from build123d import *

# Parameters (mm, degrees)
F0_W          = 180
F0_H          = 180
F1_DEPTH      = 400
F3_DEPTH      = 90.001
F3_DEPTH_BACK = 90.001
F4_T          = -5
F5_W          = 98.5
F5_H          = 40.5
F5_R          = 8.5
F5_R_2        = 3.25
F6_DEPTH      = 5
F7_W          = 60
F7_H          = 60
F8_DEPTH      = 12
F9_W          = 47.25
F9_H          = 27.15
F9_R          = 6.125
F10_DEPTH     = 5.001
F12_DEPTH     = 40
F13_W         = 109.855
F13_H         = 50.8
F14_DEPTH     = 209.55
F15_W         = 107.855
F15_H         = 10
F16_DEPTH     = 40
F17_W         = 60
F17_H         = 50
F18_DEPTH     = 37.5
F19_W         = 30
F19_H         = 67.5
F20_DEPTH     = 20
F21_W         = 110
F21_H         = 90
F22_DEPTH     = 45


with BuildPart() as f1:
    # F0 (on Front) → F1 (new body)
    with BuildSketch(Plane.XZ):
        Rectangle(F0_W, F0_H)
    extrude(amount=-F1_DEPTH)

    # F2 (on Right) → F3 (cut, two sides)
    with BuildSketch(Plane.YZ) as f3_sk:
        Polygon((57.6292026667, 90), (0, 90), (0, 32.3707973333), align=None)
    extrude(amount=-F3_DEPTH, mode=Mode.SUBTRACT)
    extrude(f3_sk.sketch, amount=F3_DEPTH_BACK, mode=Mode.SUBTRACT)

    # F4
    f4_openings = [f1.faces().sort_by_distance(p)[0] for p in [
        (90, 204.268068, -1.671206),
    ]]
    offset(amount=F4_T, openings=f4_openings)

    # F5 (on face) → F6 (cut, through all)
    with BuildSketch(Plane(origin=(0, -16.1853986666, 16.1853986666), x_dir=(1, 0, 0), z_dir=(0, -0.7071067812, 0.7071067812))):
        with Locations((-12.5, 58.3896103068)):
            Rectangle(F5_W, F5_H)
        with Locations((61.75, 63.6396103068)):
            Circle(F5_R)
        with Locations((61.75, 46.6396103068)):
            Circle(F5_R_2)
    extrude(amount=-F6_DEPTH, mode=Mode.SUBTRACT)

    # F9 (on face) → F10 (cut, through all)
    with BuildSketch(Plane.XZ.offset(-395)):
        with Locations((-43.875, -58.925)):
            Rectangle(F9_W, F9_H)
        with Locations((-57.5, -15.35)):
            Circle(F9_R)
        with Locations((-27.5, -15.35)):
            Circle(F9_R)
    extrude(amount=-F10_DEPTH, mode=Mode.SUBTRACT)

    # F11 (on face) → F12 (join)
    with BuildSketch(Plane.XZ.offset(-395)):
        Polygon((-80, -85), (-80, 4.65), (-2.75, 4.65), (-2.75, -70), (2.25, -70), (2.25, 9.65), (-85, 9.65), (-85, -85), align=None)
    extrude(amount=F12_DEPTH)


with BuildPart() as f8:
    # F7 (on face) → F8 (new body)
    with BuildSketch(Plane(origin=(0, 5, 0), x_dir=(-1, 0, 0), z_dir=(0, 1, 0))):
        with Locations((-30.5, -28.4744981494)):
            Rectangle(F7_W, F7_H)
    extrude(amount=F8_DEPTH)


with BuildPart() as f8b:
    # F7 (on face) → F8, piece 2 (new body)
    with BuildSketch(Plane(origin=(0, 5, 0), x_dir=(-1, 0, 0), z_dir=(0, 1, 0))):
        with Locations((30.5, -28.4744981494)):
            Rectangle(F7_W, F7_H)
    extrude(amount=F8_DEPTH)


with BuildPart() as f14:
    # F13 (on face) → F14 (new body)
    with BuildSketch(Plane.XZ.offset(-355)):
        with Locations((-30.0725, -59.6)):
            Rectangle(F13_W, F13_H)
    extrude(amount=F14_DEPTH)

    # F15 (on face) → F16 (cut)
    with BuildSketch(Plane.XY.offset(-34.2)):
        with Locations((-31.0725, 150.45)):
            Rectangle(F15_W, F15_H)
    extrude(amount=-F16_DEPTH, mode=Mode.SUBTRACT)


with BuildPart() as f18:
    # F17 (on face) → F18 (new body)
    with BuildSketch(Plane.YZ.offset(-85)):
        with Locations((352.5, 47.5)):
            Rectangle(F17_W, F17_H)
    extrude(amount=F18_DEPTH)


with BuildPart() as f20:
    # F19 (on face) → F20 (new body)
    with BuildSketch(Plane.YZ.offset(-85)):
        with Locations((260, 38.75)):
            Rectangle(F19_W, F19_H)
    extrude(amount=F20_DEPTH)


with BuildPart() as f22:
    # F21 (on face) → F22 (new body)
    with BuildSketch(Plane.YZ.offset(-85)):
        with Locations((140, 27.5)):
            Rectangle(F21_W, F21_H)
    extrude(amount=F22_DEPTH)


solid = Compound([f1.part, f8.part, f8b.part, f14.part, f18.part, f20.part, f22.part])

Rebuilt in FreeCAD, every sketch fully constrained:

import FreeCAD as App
import Part
import Sketcher
Q = App.Units.Quantity


def faces_at(feature, points):
    """Names of the faces that lie closest to the given points."""
    faces = feature.Shape.Faces
    near = lambda p: min(range(len(faces)), key=lambda i: faces[i].distToShape(Part.Vertex(*p))[0])
    return sorted({f"Face{near(p) + 1}" for p in points})


def add_polygon(sketch, points):
    """Adds a closed chain of lines whose ends are joined by coincident constraints."""
    first, n = sketch.GeometryCount, len(points)
    for a, b in zip(points, points[1:] + points[:1]):
        sketch.addGeometry(Part.LineSegment(App.Vector(*a, 0), App.Vector(*b, 0)), False)
    for i in range(n):
        sketch.addConstraint(Sketcher.Constraint("Coincident", first + i, 2, first + (i + 1) % n, 1))

doc = App.newDocument("Part")
body = doc.addObject("PartDesign::Body", "Body")

# Sketch on XZ plane
sketch1 = body.newObject("Sketcher::SketchObject", "Sketch")
sketch1.AttachmentSupport = (doc.getObject("XZ_Plane"), [""])
sketch1.MapMode = "FlatFace"
add_polygon(sketch1, [(-90, 90), (-90, -90), (90, -90), (90, 90)])  # lines 0-3
sketch1.addConstraint([
    Sketcher.Constraint("Vertical", 0),
    Sketcher.Constraint("Horizontal", 1),
    Sketcher.Constraint("Vertical", 2),
    Sketcher.Constraint("Horizontal", 3),
    Sketcher.Constraint("Symmetric", 0, 2, 2, 2, -1, 1),
    Sketcher.Constraint("Equal", 3, 0),
    Sketcher.Constraint("DistanceX", 1, 1, 1, 2, Q("180 mm")),
])
pad1 = body.newObject("PartDesign::Pad", "Pad")
pad1.Profile = sketch1
pad1.Length = 400
pad1.Reversed = True

# Sketch on YZ plane
sketch2 = body.newObject("Sketcher::SketchObject", "Sketch001")
sketch2.AttachmentSupport = (doc.getObject("YZ_Plane"), [""])
sketch2.MapMode = "FlatFace"
add_polygon(sketch2, [(58, 90), (0, 90), (0, 32)])  # lines 0-2
sketch2.addConstraint([
    Sketcher.Constraint("Horizontal", 0),
    Sketcher.Constraint("Vertical", 1),
    Sketcher.Constraint("PointOnObject", 0, 2, -2),
    Sketcher.Constraint("Equal", 0, 1),
    Sketcher.Constraint("DistanceY", -1, 1, 0, 2, Q("90 mm")),
    Sketcher.Constraint("Distance", 2, Q("81.5 mm")),
])
pocket1 = body.newObject("PartDesign::Pocket", "Pocket")
pocket1.Profile = sketch2
pocket1.Type = "ThroughAll"
pocket1.Midplane = True
doc.recompute()

thickness = body.newObject("PartDesign::Thickness", "Thickness")
thickness.Base = (pocket1, faces_at(pocket1, [(90, 200, 0)]))
thickness.Value = 5
thickness.Reversed = True
thickness.Join = "Arc"

# Sketch on an angled plane
sketch3 = body.newObject("Sketcher::SketchObject", "Sketch002")
sketch3.Placement = App.Placement(App.Vector(0, -16.185399, 16.185399), App.Rotation(App.Vector(1, 0, 0), App.Vector(0, 0.707106781, 0.707106781), App.Vector(0, -0.707106781, 0.707106781), "ZXY"))
add_polygon(sketch3, [(-61.8, 78.6), (-61.8, 38.1), (36.8, 38.1), (36.8, 78.6)])  # lines 0-3
sketch3.addGeometry(Part.Circle(App.Vector(61.8, 63.6, 0), App.Vector(0, 0, 1), 8.5), False)  # 4
sketch3.addGeometry(Part.Circle(App.Vector(61.8, 46.6, 0), App.Vector(0, 0, 1), 3.2), False)  # 5
sketch3.addConstraint([
    Sketcher.Constraint("Vertical", 0),
    Sketcher.Constraint("Horizontal", 1),
    Sketcher.Constraint("Vertical", 2),
    Sketcher.Constraint("Horizontal", 3),
    Sketcher.Constraint("Vertical", 4, 3, 5, 3),
    Sketcher.Constraint("Diameter", 4, Q("17 mm")),
    Sketcher.Constraint("Diameter", 5, Q("6.5 mm")),
    Sketcher.Constraint("DistanceX", 1, 1, 1, 2, Q("98.5 mm")),
    Sketcher.Constraint("DistanceY", 0, 2, 0, 1, Q("40.5 mm")),
    Sketcher.Constraint("DistanceY", 5, 3, 4, 3, Q("17 mm")),
    Sketcher.Constraint("DistanceX", 1, 2, 5, 3, Q("25 mm")),
    Sketcher.Constraint("DistanceY", 4, 3, 2, 2, Q("15 mm")),
    Sketcher.Constraint("DistanceX", -1, 1, 4, 3, Q("61.75 mm")),
    Sketcher.Constraint("DistanceY", -1, 1, 4, 3, Q("63.63961 mm")),
])
pocket2 = body.newObject("PartDesign::Pocket", "Pocket001")
pocket2.Profile = sketch3
pocket2.Length = 5

# Sketch on XZ plane
sketch4 = body.newObject("Sketcher::SketchObject", "Sketch003")
sketch4.AttachmentSupport = (doc.getObject("XZ_Plane"), [""])
sketch4.MapMode = "FlatFace"
sketch4.AttachmentOffset = App.Placement(App.Vector(0, 0, -395), App.Rotation())
add_polygon(sketch4, [(-68, -45), (-68, -72), (-20, -72), (-20, -45)])  # lines 0-3
sketch4.addGeometry(Part.Circle(App.Vector(-58, -15, 0), App.Vector(0, 0, 1), 6), False)  # 4
sketch4.addGeometry(Part.Circle(App.Vector(-28, -15, 0), App.Vector(0, 0, 1), 6), False)  # 5
sketch4.addConstraint([
    Sketcher.Constraint("Vertical", 0),
    Sketcher.Constraint("Horizontal", 1),
    Sketcher.Constraint("Vertical", 2),
    Sketcher.Constraint("Horizontal", 3),
    Sketcher.Constraint("Equal", 4, 5),
    Sketcher.Constraint("Horizontal", 4, 3, 5, 3),
    Sketcher.Constraint("Diameter", 4, Q("12.25 mm")),
    Sketcher.Constraint("DistanceX", 4, 3, 5, 3, Q("30 mm")),
    Sketcher.Constraint("DistanceX", 0, 2, 4, 3, Q("10 mm")),
    Sketcher.Constraint("DistanceY", 2, 2, 5, 3, Q("30 mm")),
    Sketcher.Constraint("DistanceX", 1, 1, 1, 2, Q("47.25 mm")),
    Sketcher.Constraint("DistanceY", 0, 2, 0, 1, Q("27.15 mm")),
    Sketcher.Constraint("DistanceX", 4, 3, -1, 1, Q("57.5 mm")),
    Sketcher.Constraint("DistanceY", 0, 2, -1, 1, Q("72.5 mm")),
])
pocket3 = body.newObject("PartDesign::Pocket", "Pocket002")
pocket3.Profile = sketch4
pocket3.Type = "ThroughAll"

# Sketch on XZ plane
sketch5 = body.newObject("Sketcher::SketchObject", "Sketch004")
sketch5.AttachmentSupport = (doc.getObject("XZ_Plane"), [""])
sketch5.MapMode = "FlatFace"
sketch5.AttachmentOffset = App.Placement(App.Vector(0, 0, -395), App.Rotation())
add_polygon(sketch5, [(-80, -85), (-80, 5), (-3, 5), (-3, -70), (2, -70), (2, 10), (-85, 10), (-85, -85)])  # lines 0-7
sketch5.addConstraint([
    Sketcher.Constraint("Vertical", 0),
    Sketcher.Constraint("Horizontal", 1),
    Sketcher.Constraint("Vertical", 2),
    Sketcher.Constraint("Horizontal", 3),
    Sketcher.Constraint("Vertical", 4),
    Sketcher.Constraint("Horizontal", 5),
    Sketcher.Constraint("Vertical", 6),
    Sketcher.Constraint("Horizontal", 7),
    Sketcher.Constraint("Equal", 3, 7),
    Sketcher.Constraint("DistanceX", 3, 1, 3, 2, Q("5 mm")),
    Sketcher.Constraint("DistanceX", 0, 2, -1, 1, Q("80 mm")),
    Sketcher.Constraint("DistanceY", 2, 2, -1, 1, Q("70 mm")),
    Sketcher.Constraint("DistanceY", 6, 2, -1, 1, Q("85 mm")),
    Sketcher.Constraint("DistanceY", 1, 2, 4, 2, Q("5 mm")),
    Sketcher.Constraint("DistanceX", 1, 1, 1, 2, Q("77.25 mm")),
    Sketcher.Constraint("DistanceY", 0, 1, 0, 2, Q("89.65 mm")),
])
pad2 = body.newObject("PartDesign::Pad", "Pad001")
pad2.Profile = sketch5
pad2.Length = 40
body2 = doc.addObject("PartDesign::Body", "Body001")

# Sketch on XZ plane
sketch6 = body2.newObject("Sketcher::SketchObject", "Sketch005")
sketch6.AttachmentSupport = (doc.getObject("XZ_Plane001"), [""])
sketch6.MapMode = "FlatFace"
sketch6.AttachmentOffset = App.Placement(App.Vector(0, 0, -5), App.Rotation())
add_polygon(sketch6, [(60, 2), (60, -58), (0, -58), (0, 2)])  # lines 0-3
sketch6.addConstraint([
    Sketcher.Constraint("Vertical", 0),
    Sketcher.Constraint("Horizontal", 1),
    Sketcher.Constraint("Vertical", 2),
    Sketcher.Constraint("Horizontal", 3),
    Sketcher.Constraint("Equal", 3, 0),
    Sketcher.Constraint("DistanceX", 1, 2, 1, 1, Q("60 mm")),
    Sketcher.Constraint("DistanceX", -1, 1, 0, 2, Q("60.5 mm")),
    Sketcher.Constraint("DistanceY", 0, 2, -1, 1, Q("58.474498 mm")),
])
pad3 = body2.newObject("PartDesign::Pad", "Pad002")
pad3.Profile = sketch6
pad3.Length = 12
pad3.Reversed = True
body3 = doc.addObject("PartDesign::Body", "Body002")

# Sketch on XZ plane
sketch7 = body3.newObject("Sketcher::SketchObject", "Sketch006")
sketch7.AttachmentSupport = (doc.getObject("XZ_Plane002"), [""])
sketch7.MapMode = "FlatFace"
sketch7.AttachmentOffset = App.Placement(App.Vector(0, 0, -5), App.Rotation())
add_polygon(sketch7, [(0, 2), (0, -58), (-60, -58), (-60, 2)])  # lines 0-3
sketch7.addConstraint([
    Sketcher.Constraint("Vertical", 0),
    Sketcher.Constraint("Horizontal", 1),
    Sketcher.Constraint("Vertical", 2),
    Sketcher.Constraint("Horizontal", 3),
    Sketcher.Constraint("Equal", 3, 0),
    Sketcher.Constraint("DistanceX", 1, 2, 1, 1, Q("60 mm")),
    Sketcher.Constraint("DistanceX", 0, 2, -1, 1, Q("0.5 mm")),
    Sketcher.Constraint("DistanceY", 0, 2, -1, 1, Q("58.474498 mm")),
])
pad4 = body3.newObject("PartDesign::Pad", "Pad003")
pad4.Profile = sketch7
pad4.Length = 12
pad4.Reversed = True
body4 = doc.addObject("PartDesign::Body", "Body003")

# Sketch on XZ plane
sketch8 = body4.newObject("Sketcher::SketchObject", "Sketch007")
sketch8.AttachmentSupport = (doc.getObject("XZ_Plane003"), [""])
sketch8.MapMode = "FlatFace"
sketch8.AttachmentOffset = App.Placement(App.Vector(0, 0, -355), App.Rotation())
add_polygon(sketch8, [(-85, -34), (-85, -85), (25, -85), (25, -34)])  # lines 0-3
sketch8.addConstraint([
    Sketcher.Constraint("Vertical", 0),
    Sketcher.Constraint("Horizontal", 1),
    Sketcher.Constraint("Vertical", 2),
    Sketcher.Constraint("Horizontal", 3),
    Sketcher.Constraint("DistanceY", 0, 2, 0, 1, Q("50.8 mm")),
    Sketcher.Constraint("DistanceX", 0, 2, -1, 1, Q("85 mm")),
    Sketcher.Constraint("DistanceY", 0, 2, -1, 1, Q("85 mm")),
    Sketcher.Constraint("DistanceX", 1, 1, 1, 2, Q("109.855 mm")),
])
pad5 = body4.newObject("PartDesign::Pad", "Pad004")
pad5.Profile = sketch8
pad5.Length = 209.55

# Sketch on XY plane
sketch9 = body4.newObject("Sketcher::SketchObject", "Sketch008")
sketch9.AttachmentSupport = (doc.getObject("XY_Plane003"), [""])
sketch9.MapMode = "FlatFace"
sketch9.AttachmentOffset = App.Placement(App.Vector(0, 0, -34.2), App.Rotation())
add_polygon(sketch9, [(-85, 155), (-85, 145), (23, 145), (23, 155)])  # lines 0-3
sketch9.addConstraint([
    Sketcher.Constraint("Vertical", 0),
    Sketcher.Constraint("Horizontal", 1),
    Sketcher.Constraint("Vertical", 2),
    Sketcher.Constraint("Horizontal", 3),
    Sketcher.Constraint("DistanceY", 0, 2, 0, 1, Q("10 mm")),
    Sketcher.Constraint("DistanceX", 0, 2, -1, 1, Q("85 mm")),
    Sketcher.Constraint("DistanceX", 1, 1, 1, 2, Q("107.855 mm")),
    Sketcher.Constraint("DistanceY", -1, 1, 0, 2, Q("145.45 mm")),
])
pocket4 = body4.newObject("PartDesign::Pocket", "Pocket003")
pocket4.Profile = sketch9
pocket4.Length = 40
body5 = doc.addObject("PartDesign::Body", "Body004")

# Sketch on YZ plane
sketch10 = body5.newObject("Sketcher::SketchObject", "Sketch009")
sketch10.AttachmentSupport = (doc.getObject("YZ_Plane004"), [""])
sketch10.MapMode = "FlatFace"
sketch10.AttachmentOffset = App.Placement(App.Vector(0, 0, -85), App.Rotation())
add_polygon(sketch10, [(322, 72), (322, 22), (382, 22), (382, 72)])  # lines 0-3
sketch10.addConstraint([
    Sketcher.Constraint("Vertical", 0),
    Sketcher.Constraint("Horizontal", 1),
    Sketcher.Constraint("Vertical", 2),
    Sketcher.Constraint("Horizontal", 3),
    Sketcher.Constraint("DistanceX", 1, 1, 1, 2, Q("60 mm")),
    Sketcher.Constraint("DistanceY", 0, 2, 0, 1, Q("50 mm")),
    Sketcher.Constraint("DistanceX", -1, 1, 0, 2, Q("322.5 mm")),
    Sketcher.Constraint("DistanceY", -1, 1, 0, 2, Q("22.5 mm")),
])
pad6 = body5.newObject("PartDesign::Pad", "Pad005")
pad6.Profile = sketch10
pad6.Length = 37.5
body6 = doc.addObject("PartDesign::Body", "Body005")

# Sketch on YZ plane
sketch11 = body6.newObject("Sketcher::SketchObject", "Sketch010")
sketch11.AttachmentSupport = (doc.getObject("YZ_Plane005"), [""])
sketch11.MapMode = "FlatFace"
sketch11.AttachmentOffset = App.Placement(App.Vector(0, 0, -85), App.Rotation())
add_polygon(sketch11, [(245, 72), (245, 5), (275, 5), (275, 72)])  # lines 0-3
sketch11.addConstraint([
    Sketcher.Constraint("Vertical", 0),
    Sketcher.Constraint("Horizontal", 1),
    Sketcher.Constraint("Vertical", 2),
    Sketcher.Constraint("Horizontal", 3),
    Sketcher.Constraint("DistanceX", 1, 1, 1, 2, Q("30 mm")),
    Sketcher.Constraint("DistanceY", 0, 2, 0, 1, Q("67.5 mm")),
    Sketcher.Constraint("DistanceX", -1, 1, 0, 2, Q("245 mm")),
    Sketcher.Constraint("DistanceY", -1, 1, 0, 2, Q("5 mm")),
])
pad7 = body6.newObject("PartDesign::Pad", "Pad006")
pad7.Profile = sketch11
pad7.Length = 20
body7 = doc.addObject("PartDesign::Body", "Body006")

# Sketch on YZ plane
sketch12 = body7.newObject("Sketcher::SketchObject", "Sketch011")
sketch12.AttachmentSupport = (doc.getObject("YZ_Plane006"), [""])
sketch12.MapMode = "FlatFace"
sketch12.AttachmentOffset = App.Placement(App.Vector(0, 0, -85), App.Rotation())
add_polygon(sketch12, [(85, 72), (85, -18), (195, -18), (195, 72)])  # lines 0-3
sketch12.addConstraint([
    Sketcher.Constraint("Vertical", 0),
    Sketcher.Constraint("Horizontal", 1),
    Sketcher.Constraint("Vertical", 2),
    Sketcher.Constraint("Horizontal", 3),
    Sketcher.Constraint("DistanceX", 1, 1, 1, 2, Q("110 mm")),
    Sketcher.Constraint("DistanceY", 0, 2, 0, 1, Q("90 mm")),
    Sketcher.Constraint("DistanceX", -1, 1, 0, 2, Q("85 mm")),
    Sketcher.Constraint("DistanceY", 0, 2, -1, 1, Q("17.5 mm")),
])
pad8 = body7.newObject("PartDesign::Pad", "Pad007")
pad8.Profile = sketch12
pad8.Length = 45

doc.recompute()
